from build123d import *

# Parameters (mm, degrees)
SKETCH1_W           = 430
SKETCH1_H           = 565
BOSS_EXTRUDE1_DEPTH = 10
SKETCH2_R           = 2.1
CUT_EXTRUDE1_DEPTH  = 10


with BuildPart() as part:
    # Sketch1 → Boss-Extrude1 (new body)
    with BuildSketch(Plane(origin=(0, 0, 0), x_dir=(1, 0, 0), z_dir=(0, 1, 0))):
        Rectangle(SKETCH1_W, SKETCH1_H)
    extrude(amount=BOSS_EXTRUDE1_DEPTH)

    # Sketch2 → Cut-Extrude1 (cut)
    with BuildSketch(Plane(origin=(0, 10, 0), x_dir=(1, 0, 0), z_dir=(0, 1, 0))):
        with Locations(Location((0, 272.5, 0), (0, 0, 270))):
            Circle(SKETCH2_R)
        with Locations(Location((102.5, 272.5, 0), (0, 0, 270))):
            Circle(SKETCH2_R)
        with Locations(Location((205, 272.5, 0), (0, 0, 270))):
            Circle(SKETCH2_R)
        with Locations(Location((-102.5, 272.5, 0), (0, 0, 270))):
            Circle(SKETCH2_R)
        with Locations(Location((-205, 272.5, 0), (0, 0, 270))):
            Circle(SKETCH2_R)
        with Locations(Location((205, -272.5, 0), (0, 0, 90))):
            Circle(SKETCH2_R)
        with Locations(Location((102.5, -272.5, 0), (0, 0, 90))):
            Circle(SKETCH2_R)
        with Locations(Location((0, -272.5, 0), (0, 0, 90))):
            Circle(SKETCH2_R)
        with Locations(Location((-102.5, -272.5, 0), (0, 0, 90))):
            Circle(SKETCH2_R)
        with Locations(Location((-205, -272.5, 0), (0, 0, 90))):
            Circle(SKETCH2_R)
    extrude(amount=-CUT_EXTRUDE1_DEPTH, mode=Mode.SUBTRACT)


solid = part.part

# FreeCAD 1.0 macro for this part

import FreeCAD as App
import Part
import Sketcher

V = App.Vector

doc = App.newDocument("Part")
body = doc.addObject("PartDesign::Body", "Body")

sketch1 = body.newObject("Sketcher::SketchObject", "Sketch")
sketch1.AttachmentSupport = (doc.getObject("XZ_Plane"), [""])
sketch1.MapMode = "FlatFace"
sketch1.addGeometry(Part.LineSegment(V(-215, -282, 0), V(-215, 282, 0)), False)
sketch1.addGeometry(Part.LineSegment(V(-215, 282, 0), V(215, 282, 0)), False)
sketch1.addGeometry(Part.LineSegment(V(215, 282, 0), V(215, -282, 0)), False)
sketch1.addGeometry(Part.LineSegment(V(215, -282, 0), V(-215, -282, 0)), False)
sketch1.addConstraint(Sketcher.Constraint("Coincident", 0, 2, 1, 1))
sketch1.addConstraint(Sketcher.Constraint("Coincident", 1, 2, 2, 1))
sketch1.addConstraint(Sketcher.Constraint("Coincident", 2, 2, 3, 1))
sketch1.addConstraint(Sketcher.Constraint("Coincident", 3, 2, 0, 1))
sketch1.addConstraint(Sketcher.Constraint("Vertical", 0))
sketch1.addConstraint(Sketcher.Constraint("Horizontal", 1))
sketch1.addConstraint(Sketcher.Constraint("Vertical", 2))
sketch1.addConstraint(Sketcher.Constraint("Horizontal", 3))
sketch1.addConstraint(Sketcher.Constraint("Symmetric", 0, 2, 2, 2, -1, 1))
sketch1.addConstraint(Sketcher.Constraint("DistanceX", 1, 1, 1, 2, 430.0))
sketch1.addConstraint(Sketcher.Constraint("DistanceY", 0, 1, 0, 2, 565.0))
pad1 = body.newObject("PartDesign::Pad", "Pad")
pad1.Profile = sketch1
pad1.Length = 10
pad1.Reversed = True

sketch2 = body.newObject("Sketcher::SketchObject", "Sketch001")
sketch2.AttachmentSupport = (doc.getObject("XZ_Plane"), [""])
sketch2.MapMode = "FlatFace"
sketch2.AttachmentOffset = App.Placement(V(0, 0, -10), App.Rotation())
sketch2.addGeometry(Part.Circle(V(0, -272.5, 0), V(0, 0, 1), 2.1), False)
sketch2.addGeometry(Part.Circle(V(102.5, -272.5, 0), V(0, 0, 1), 2.1), False)
sketch2.addGeometry(Part.Circle(V(205, -272.5, 0), V(0, 0, 1), 2.1), False)
sketch2.addGeometry(Part.Circle(V(-102.5, -272.5, 0), V(0, 0, 1), 2.1), False)
sketch2.addGeometry(Part.Circle(V(-205, -272.5, 0), V(0, 0, 1), 2.1), False)
sketch2.addGeometry(Part.Circle(V(205, 272.5, 0), V(0, 0, 1), 2.1), False)
sketch2.addGeometry(Part.Circle(V(102.5, 272.5, 0), V(0, 0, 1), 2.1), False)
sketch2.addGeometry(Part.Circle(V(0, 272.5, 0), V(0, 0, 1), 2.1), False)
sketch2.addGeometry(Part.Circle(V(-102.5, 272.5, 0), V(0, 0, 1), 2.1), False)
sketch2.addGeometry(Part.Circle(V(-205, 272.5, 0), V(0, 0, 1), 2.1), False)
sketch2.addConstraint(Sketcher.Constraint("Equal", 0, 1))
sketch2.addConstraint(Sketcher.Constraint("Equal", 1, 2))
sketch2.addConstraint(Sketcher.Constraint("Equal", 2, 3))
sketch2.addConstraint(Sketcher.Constraint("Equal", 3, 4))
sketch2.addConstraint(Sketcher.Constraint("Equal", 4, 5))
sketch2.addConstraint(Sketcher.Constraint("Equal", 5, 6))
sketch2.addConstraint(Sketcher.Constraint("Equal", 6, 7))
sketch2.addConstraint(Sketcher.Constraint("Equal", 7, 8))
sketch2.addConstraint(Sketcher.Constraint("Equal", 8, 9))
sketch2.addConstraint(Sketcher.Constraint("Symmetric", 4, 3, 5, 3, -1, 1))
sketch2.addConstraint(Sketcher.Constraint("Symmetric", 3, 3, 6, 3, -1, 1))
sketch2.addConstraint(Sketcher.Constraint("Symmetric", 0, 3, 7, 3, -1, 1))
sketch2.addConstraint(Sketcher.Constraint("Symmetric", 1, 3, 8, 3, -1, 1))
sketch2.addConstraint(Sketcher.Constraint("Symmetric", 2, 3, 9, 3, -1, 1))
sketch2.addConstraint(Sketcher.Constraint("Symmetric", 1, 3, 3, 3, -2))
sketch2.addConstraint(Sketcher.Constraint("Symmetric", 2, 3, 4, 3, -2))
sketch2.addConstraint(Sketcher.Constraint("PointOnObject", 0, 3, -2))
sketch2.addConstraint(Sketcher.Constraint("Horizontal", 0, 3, 1, 3))
sketch2.addConstraint(Sketcher.Constraint("Horizontal", 1, 3, 2, 3))
sketch2.addConstraint(Sketcher.Constraint("Diameter", 0, 4.2))
sketch2.addConstraint(Sketcher.Constraint("DistanceX", -1, 1, 2, 3, 205.0))
sketch2.addConstraint(Sketcher.Constraint("DistanceX", 3, 3, 1, 3, 205.0))
sketch2.addConstraint(Sketcher.Constraint("DistanceY", 2, 3, 5, 3, 545.0))
pocket1 = body.newObject("PartDesign::Pocket", "Pocket")
pocket1.Profile = sketch2
pocket1.Length = 10
pocket1.Reversed = True

doc.recompute()
